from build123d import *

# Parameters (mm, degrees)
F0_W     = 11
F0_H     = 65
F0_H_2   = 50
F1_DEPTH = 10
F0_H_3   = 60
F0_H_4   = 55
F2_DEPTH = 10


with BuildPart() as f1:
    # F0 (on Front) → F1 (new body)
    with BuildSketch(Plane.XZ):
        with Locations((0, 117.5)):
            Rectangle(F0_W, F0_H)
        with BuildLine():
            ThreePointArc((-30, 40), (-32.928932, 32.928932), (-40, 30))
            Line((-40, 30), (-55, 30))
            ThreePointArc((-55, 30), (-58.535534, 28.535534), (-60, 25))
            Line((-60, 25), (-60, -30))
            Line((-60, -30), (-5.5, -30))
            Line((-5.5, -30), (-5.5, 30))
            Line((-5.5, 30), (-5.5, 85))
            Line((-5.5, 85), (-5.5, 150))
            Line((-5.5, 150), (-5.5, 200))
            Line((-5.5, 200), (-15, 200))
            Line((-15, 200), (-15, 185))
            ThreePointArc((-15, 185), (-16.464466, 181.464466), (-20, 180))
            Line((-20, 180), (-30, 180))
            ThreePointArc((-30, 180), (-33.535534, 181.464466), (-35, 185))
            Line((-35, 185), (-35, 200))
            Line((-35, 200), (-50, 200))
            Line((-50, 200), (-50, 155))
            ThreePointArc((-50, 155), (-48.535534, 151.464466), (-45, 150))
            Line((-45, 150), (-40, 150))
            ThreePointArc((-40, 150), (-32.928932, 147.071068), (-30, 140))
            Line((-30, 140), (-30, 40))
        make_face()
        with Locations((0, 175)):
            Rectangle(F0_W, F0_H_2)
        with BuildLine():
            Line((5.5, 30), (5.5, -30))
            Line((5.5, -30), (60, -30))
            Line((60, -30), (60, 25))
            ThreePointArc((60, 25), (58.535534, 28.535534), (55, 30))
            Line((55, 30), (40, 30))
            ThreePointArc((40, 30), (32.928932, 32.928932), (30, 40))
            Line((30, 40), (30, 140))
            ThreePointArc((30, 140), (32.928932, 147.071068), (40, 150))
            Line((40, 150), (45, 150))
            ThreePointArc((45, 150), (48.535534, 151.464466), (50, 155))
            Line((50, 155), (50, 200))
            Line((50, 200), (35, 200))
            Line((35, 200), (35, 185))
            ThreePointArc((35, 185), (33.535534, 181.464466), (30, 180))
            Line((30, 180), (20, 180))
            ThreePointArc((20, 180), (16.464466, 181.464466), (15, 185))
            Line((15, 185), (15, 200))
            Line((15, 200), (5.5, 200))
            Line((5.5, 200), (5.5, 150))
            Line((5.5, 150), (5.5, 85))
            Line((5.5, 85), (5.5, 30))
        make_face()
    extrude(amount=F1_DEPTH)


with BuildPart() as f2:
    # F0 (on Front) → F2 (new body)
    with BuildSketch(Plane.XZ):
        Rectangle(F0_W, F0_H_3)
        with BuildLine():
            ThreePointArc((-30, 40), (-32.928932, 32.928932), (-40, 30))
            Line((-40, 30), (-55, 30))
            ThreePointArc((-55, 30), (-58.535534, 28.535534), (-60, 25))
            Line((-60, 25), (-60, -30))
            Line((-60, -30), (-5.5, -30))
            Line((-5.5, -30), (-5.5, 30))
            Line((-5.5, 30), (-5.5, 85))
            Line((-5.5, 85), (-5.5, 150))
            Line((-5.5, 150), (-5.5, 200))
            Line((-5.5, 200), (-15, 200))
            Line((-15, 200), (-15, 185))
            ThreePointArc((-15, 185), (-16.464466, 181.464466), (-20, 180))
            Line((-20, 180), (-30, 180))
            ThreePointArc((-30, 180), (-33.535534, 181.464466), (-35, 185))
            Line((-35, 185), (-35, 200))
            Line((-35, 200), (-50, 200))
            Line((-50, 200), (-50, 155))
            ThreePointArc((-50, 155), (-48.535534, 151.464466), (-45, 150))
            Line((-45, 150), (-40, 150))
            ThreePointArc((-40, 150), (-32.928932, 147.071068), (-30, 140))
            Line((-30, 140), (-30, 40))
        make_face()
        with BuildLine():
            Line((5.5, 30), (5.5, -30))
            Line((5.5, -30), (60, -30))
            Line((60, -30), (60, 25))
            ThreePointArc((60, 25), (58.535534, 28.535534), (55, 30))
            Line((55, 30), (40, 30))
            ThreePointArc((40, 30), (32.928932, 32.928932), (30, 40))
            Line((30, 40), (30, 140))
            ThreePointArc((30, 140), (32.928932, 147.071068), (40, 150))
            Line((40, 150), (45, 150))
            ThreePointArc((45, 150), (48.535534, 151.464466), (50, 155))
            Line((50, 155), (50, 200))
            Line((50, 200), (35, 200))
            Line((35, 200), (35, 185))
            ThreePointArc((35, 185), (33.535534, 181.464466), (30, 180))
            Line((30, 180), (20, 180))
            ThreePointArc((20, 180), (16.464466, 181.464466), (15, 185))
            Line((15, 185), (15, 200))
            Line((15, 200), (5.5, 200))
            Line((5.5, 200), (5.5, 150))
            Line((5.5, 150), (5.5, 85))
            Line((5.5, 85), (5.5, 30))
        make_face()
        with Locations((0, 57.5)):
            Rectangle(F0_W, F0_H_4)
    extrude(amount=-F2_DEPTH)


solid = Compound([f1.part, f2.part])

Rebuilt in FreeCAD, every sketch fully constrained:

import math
import FreeCAD as App
import Part
import Sketcher
from FreeCAD import Vector

doc = App.newDocument("Part")
body = doc.addObject("PartDesign::Body", "Body")

# Sketch on XZ plane
sketch1 = doc.addObject("Sketcher::SketchObject", "Sketch")
body.addObject(sketch1)
sketch1.AttachmentSupport = (doc.XZ_Plane, [""])
sketch1.MapMode = "FlatFace"
sketch1.addGeometry(Part.LineSegment(Vector(-5.5, 85, 0), Vector(5.5, 85, 0)), False)
sketch1.addGeometry(Part.LineSegment(Vector(5.5, 85, 0), Vector(5.5, -30, 0)), False)
sketch1.addGeometry(Part.LineSegment(Vector(5.5, -30, 0), Vector(60, -30, 0)), False)
sketch1.addGeometry(Part.LineSegment(Vector(60, -30, 0), Vector(60, 25, 0)), False)
sketch1.addGeometry(Part.ArcOfCircle(Part.Circle(Vector(55, 25, 0), Vector(0, 0, 1), 5), math.radians(0), math.radians(90)), False)
sketch1.addGeometry(Part.LineSegment(Vector(55, 30, 0), Vector(40, 30, 0)), False)
sketch1.addGeometry(Part.ArcOfCircle(Part.Circle(Vector(40, 40, 0), Vector(0, 0, 1), 10), math.radians(180), math.radians(270)), False)
sketch1.addGeometry(Part.LineSegment(Vector(30, 40, 0), Vector(30, 140, 0)), False)
sketch1.addGeometry(Part.ArcOfCircle(Part.Circle(Vector(40, 140, 0), Vector(0, 0, 1), 10), math.radians(90), math.radians(180)), False)
sketch1.addGeometry(Part.LineSegment(Vector(40, 150, 0), Vector(45, 150, 0)), False)
sketch1.addGeometry(Part.ArcOfCircle(Part.Circle(Vector(45, 155, 0), Vector(0, 0, 1), 5), math.radians(-90), math.radians(0)), False)
sketch1.addGeometry(Part.LineSegment(Vector(50, 155, 0), Vector(50, 200, 0)), False)
sketch1.addGeometry(Part.LineSegment(Vector(50, 200, 0), Vector(35, 200, 0)), False)
sketch1.addGeometry(Part.LineSegment(Vector(35, 200, 0), Vector(35, 185, 0)), False)
sketch1.addGeometry(Part.ArcOfCircle(Part.Circle(Vector(30, 185, 0), Vector(0, 0, 1), 5), math.radians(-90), math.radians(0)), False)
sketch1.addGeometry(Part.LineSegment(Vector(30, 180, 0), Vector(20, 180, 0)), False)
sketch1.addGeometry(Part.ArcOfCircle(Part.Circle(Vector(20, 185, 0), Vector(0, 0, 1), 5), math.radians(180), math.radians(270)), False)
sketch1.addGeometry(Part.LineSegment(Vector(15, 185, 0), Vector(15, 200, 0)), False)
sketch1.addGeometry(Part.LineSegment(Vector(15, 200, 0), Vector(-15, 200, 0)), False)
sketch1.addGeometry(Part.LineSegment(Vector(-15, 200, 0), Vector(-15, 185, 0)), False)
sketch1.addGeometry(Part.ArcOfCircle(Part.Circle(Vector(-20, 185, 0), Vector(0, 0, 1), 5), math.radians(-90), math.radians(0)), False)
sketch1.addGeometry(Part.LineSegment(Vector(-20, 180, 0), Vector(-30, 180, 0)), False)
sketch1.addGeometry(Part.ArcOfCircle(Part.Circle(Vector(-30, 185, 0), Vector(0, 0, 1), 5), math.radians(180), math.radians(270)), False)
sketch1.addGeometry(Part.LineSegment(Vector(-35, 185, 0), Vector(-35, 200, 0)), False)
sketch1.addGeometry(Part.LineSegment(Vector(-35, 200, 0), Vector(-50, 200, 0)), False)
sketch1.addGeometry(Part.LineSegment(Vector(-50, 200, 0), Vector(-50, 155, 0)), False)
sketch1.addGeometry(Part.ArcOfCircle(Part.Circle(Vector(-45, 155, 0), Vector(0, 0, 1), 5), math.radians(180), math.radians(270)), False)
sketch1.addGeometry(Part.LineSegment(Vector(-45, 150, 0), Vector(-40, 150, 0)), False)
sketch1.addGeometry(Part.ArcOfCircle(Part.Circle(Vector(-40, 140, 0), Vector(0, 0, 1), 10), math.radians(0), math.radians(90)), False)
sketch1.addGeometry(Part.LineSegment(Vector(-30, 140, 0), Vector(-30, 40, 0)), False)
sketch1.addGeometry(Part.ArcOfCircle(Part.Circle(Vector(-40, 40, 0), Vector(0, 0, 1), 10), math.radians(-90), math.radians(0)), False)
sketch1.addGeometry(Part.LineSegment(Vector(-40, 30, 0), Vector(-55, 30, 0)), False)
sketch1.addGeometry(Part.ArcOfCircle(Part.Circle(Vector(-55, 25, 0), Vector(0, 0, 1), 5), math.radians(90), math.radians(180)), False)
sketch1.addGeometry(Part.LineSegment(Vector(-60, 25, 0), Vector(-60, -30, 0)), False)
sketch1.addGeometry(Part.LineSegment(Vector(-60, -30, 0), Vector(-5.5, -30, 0)), False)
sketch1.addGeometry(Part.LineSegment(Vector(-5.5, -30, 0), Vector(-5.5, 85, 0)), False)
sketch1.addConstraint(Sketcher.Constraint("Coincident", 0, 2, 1, 1))
sketch1.addConstraint(Sketcher.Constraint("Coincident", 1, 2, 2, 1))
sketch1.addConstraint(Sketcher.Constraint("Coincident", 2, 2, 3, 1))
sketch1.addConstraint(Sketcher.Constraint("Tangent", 3, 2, 4, 1))
sketch1.addConstraint(Sketcher.Constraint("Tangent", 4, 2, 5, 1))
sketch1.addConstraint(Sketcher.Constraint("Tangent", 5, 2, 6, 2))
sketch1.addConstraint(Sketcher.Constraint("Tangent", 6, 1, 7, 1))
sketch1.addConstraint(Sketcher.Constraint("Tangent", 7, 2, 8, 2))
sketch1.addConstraint(Sketcher.Constraint("Tangent", 8, 1, 9, 1))
sketch1.addConstraint(Sketcher.Constraint("Tangent", 9, 2, 10, 1))
sketch1.addConstraint(Sketcher.Constraint("Tangent", 10, 2, 11, 1))
sketch1.addConstraint(Sketcher.Constraint("Coincident", 11, 2, 12, 1))
sketch1.addConstraint(Sketcher.Constraint("Coincident", 12, 2, 13, 1))
sketch1.addConstraint(Sketcher.Constraint("Tangent", 13, 2, 14, 2))
sketch1.addConstraint(Sketcher.Constraint("Tangent", 14, 1, 15, 1))
sketch1.addConstraint(Sketcher.Constraint("Tangent", 15, 2, 16, 2))
sketch1.addConstraint(Sketcher.Constraint("Tangent", 16, 1, 17, 1))
sketch1.addConstraint(Sketcher.Constraint("Coincident", 17, 2, 18, 1))
sketch1.addConstraint(Sketcher.Constraint("Coincident", 18, 2, 19, 1))
sketch1.addConstraint(Sketcher.Constraint("Tangent", 19, 2, 20, 2))
sketch1.addConstraint(Sketcher.Constraint("Tangent", 20, 1, 21, 1))
sketch1.addConstraint(Sketcher.Constraint("Tangent", 21, 2, 22, 2))
sketch1.addConstraint(Sketcher.Constraint("Tangent", 22, 1, 23, 1))
sketch1.addConstraint(Sketcher.Constraint("Coincident", 23, 2, 24, 1))
sketch1.addConstraint(Sketcher.Constraint("Coincident", 24, 2, 25, 1))
sketch1.addConstraint(Sketcher.Constraint("Tangent", 25, 2, 26, 1))
sketch1.addConstraint(Sketcher.Constraint("Tangent", 26, 2, 27, 1))
sketch1.addConstraint(Sketcher.Constraint("Tangent", 27, 2, 28, 2))
sketch1.addConstraint(Sketcher.Constraint("Tangent", 28, 1, 29, 1))
sketch1.addConstraint(Sketcher.Constraint("Tangent", 29, 2, 30, 2))
sketch1.addConstraint(Sketcher.Constraint("Tangent", 30, 1, 31, 1))
sketch1.addConstraint(Sketcher.Constraint("Tangent", 31, 2, 32, 1))
sketch1.addConstraint(Sketcher.Constraint("Tangent", 32, 2, 33, 1))
sketch1.addConstraint(Sketcher.Constraint("Coincident", 33, 2, 34, 1))
sketch1.addConstraint(Sketcher.Constraint("Coincident", 34, 2, 35, 1))
sketch1.addConstraint(Sketcher.Constraint("Coincident", 35, 2, 0, 1))
sketch1.addConstraint(Sketcher.Constraint("Horizontal", 0))
sketch1.addConstraint(Sketcher.Constraint("Vertical", 1))
sketch1.addConstraint(Sketcher.Constraint("Horizontal", 2))
sketch1.addConstraint(Sketcher.Constraint("Vertical", 3))
sketch1.addConstraint(Sketcher.Constraint("Horizontal", 5))
sketch1.addConstraint(Sketcher.Constraint("Vertical", 7))
sketch1.addConstraint(Sketcher.Constraint("Horizontal", 9))
sketch1.addConstraint(Sketcher.Constraint("Vertical", 11))
sketch1.addConstraint(Sketcher.Constraint("Horizontal", 12))
sketch1.addConstraint(Sketcher.Constraint("Vertical", 13))
sketch1.addConstraint(Sketcher.Constraint("Horizontal", 15))
sketch1.addConstraint(Sketcher.Constraint("Vertical", 17))
sketch1.addConstraint(Sketcher.Constraint("Horizontal", 18))
sketch1.addConstraint(Sketcher.Constraint("Vertical", 19))
sketch1.addConstraint(Sketcher.Constraint("Horizontal", 21))
sketch1.addConstraint(Sketcher.Constraint("Vertical", 23))
sketch1.addConstraint(Sketcher.Constraint("Horizontal", 24))
sketch1.addConstraint(Sketcher.Constraint("Vertical", 25))
sketch1.addConstraint(Sketcher.Constraint("Horizontal", 27))
sketch1.addConstraint(Sketcher.Constraint("Vertical", 29))
sketch1.addConstraint(Sketcher.Constraint("Horizontal", 31))
sketch1.addConstraint(Sketcher.Constraint("Vertical", 33))
sketch1.addConstraint(Sketcher.Constraint("Horizontal", 34))
sketch1.addConstraint(Sketcher.Constraint("Vertical", 35))
sketch1.addConstraint(Sketcher.Constraint("Equal", 6, 8))
sketch1.addConstraint(Sketcher.Constraint("Equal", 4, 10))
sketch1.addConstraint(Sketcher.Constraint("Equal", 10, 14))
sketch1.addConstraint(Sketcher.Constraint("Equal", 14, 16))
sketch1.addConstraint(Sketcher.Constraint("Equal", 16, 20))
sketch1.addConstraint(Sketcher.Constraint("Equal", 20, 22))
sketch1.addConstraint(Sketcher.Constraint("Equal", 22, 26))
sketch1.addConstraint(Sketcher.Constraint("Equal", 8, 28))
sketch1.addConstraint(Sketcher.Constraint("Equal", 28, 30))
sketch1.addConstraint(Sketcher.Constraint("Equal", 26, 32))
sketch1.addConstraint(Sketcher.Constraint("Symmetric", 16, 3, 20, 3, -2))
sketch1.addConstraint(Sketcher.Constraint("Symmetric", 10, 3, 26, 3, -2))
sketch1.addConstraint(Sketcher.Constraint("Symmetric", 6, 3, 30, 3, -2))
sketch1.addConstraint(Sketcher.Constraint("Symmetric", 12, 2, 23, 2, -2))
sketch1.addConstraint(Sketcher.Constraint("Symmetric", 2, 2, 33, 2, -2))
sketch1.addConstraint(Sketcher.Constraint("Horizontal", 12, 2, 17, 2))
sketch1.addConstraint(Sketcher.Constraint("Vertical", 14, 3, 6, 1))
sketch1.addConstraint(Sketcher.Constraint("Equal", 5, 12))
sketch1.addConstraint(Sketcher.Constraint("Equal", 2, 34))
sketch1.addConstraint(Sketcher.Constraint("Equal", 31, 13))
sketch1.addConstraint(Sketcher.Constraint("Radius", 4, 5.0))
sketch1.addConstraint(Sketcher.Constraint("Radius", 6, 9.999999))
sketch1.addConstraint(Sketcher.Constraint("DistanceX", 0, 1, 0, 2, 11.0))
sketch1.addConstraint(Sketcher.Constraint("DistanceX", 5, 2, 5, 1, 15.0))
sketch1.addConstraint(Sketcher.Constraint("DistanceX", 15, 2, 15, 1, 10.0))
sketch1.addConstraint(Sketcher.Constraint("DistanceX", 18, 2, 18, 1, 30.0))
sketch1.addConstraint(Sketcher.Constraint("DistanceY", 1, 2, 1, 1, 115.0))
sketch1.addConstraint(Sketcher.Constraint("DistanceY", 3, 1, 3, 2, 55.0))
sketch1.addConstraint(Sketcher.Constraint("DistanceY", 7, 1, 7, 2, 100.0))
sketch1.addConstraint(Sketcher.Constraint("DistanceY", 11, 1, 11, 2, 45.0))
sketch1.addConstraint(Sketcher.Constraint("DistanceY", -1, 1, 4, 3, 25.0))
pad1 = doc.addObject("PartDesign::Pad", "Pad")
body.addObject(pad1)
pad1.Profile = sketch1
pad1.Length = 10
body2 = doc.addObject("PartDesign::Body", "Body001")

# Sketch on XZ plane
sketch2 = doc.addObject("Sketcher::SketchObject", "Sketch001")
body2.addObject(sketch2)
sketch2.AttachmentSupport = (doc.getObject("XZ_Plane001"), [""])
sketch2.MapMode = "FlatFace"
sketch2.addGeometry(Part.LineSegment(Vector(-5.5, 85, 0), Vector(-5.5, 200, 0)), False)
sketch2.addGeometry(Part.LineSegment(Vector(-5.5, 200, 0), Vector(-15, 200, 0)), False)
sketch2.addGeometry(Part.LineSegment(Vector(-15, 200, 0), Vector(-15, 185, 0)), False)
sketch2.addGeometry(Part.ArcOfCircle(Part.Circle(Vector(-20, 185, 0), Vector(0, 0, 1), 5), math.radians(-90), math.radians(0)), False)
sketch2.addGeometry(Part.LineSegment(Vector(-20, 180, 0), Vector(-30, 180, 0)), False)
sketch2.addGeometry(Part.ArcOfCircle(Part.Circle(Vector(-30, 185, 0), Vector(0, 0, 1), 5), math.radians(180), math.radians(270)), False)
sketch2.addGeometry(Part.LineSegment(Vector(-35, 185, 0), Vector(-35, 200, 0)), False)
sketch2.addGeometry(Part.LineSegment(Vector(-35, 200, 0), Vector(-50, 200, 0)), False)
sketch2.addGeometry(Part.LineSegment(Vector(-50, 200, 0), Vector(-50, 155, 0)), False)
sketch2.addGeometry(Part.ArcOfCircle(Part.Circle(Vector(-45, 155, 0), Vector(0, 0, 1), 5), math.radians(180), math.radians(270)), False)
sketch2.addGeometry(Part.LineSegment(Vector(-45, 150, 0), Vector(-40, 150, 0)), False)
sketch2.addGeometry(Part.ArcOfCircle(Part.Circle(Vector(-40, 140, 0), Vector(0, 0, 1), 10), math.radians(0), math.radians(90)), False)
sketch2.addGeometry(Part.LineSegment(Vector(-30, 140, 0), Vector(-30, 40, 0)), False)
sketch2.addGeometry(Part.ArcOfCircle(Part.Circle(Vector(-40, 40, 0), Vector(0, 0, 1), 10), math.radians(-90), math.radians(0)), False)
sketch2.addGeometry(Part.LineSegment(Vector(-40, 30, 0), Vector(-55, 30, 0)), False)
sketch2.addGeometry(Part.ArcOfCircle(Part.Circle(Vector(-55, 25, 0), Vector(0, 0, 1), 5), math.radians(90), math.radians(180)), False)
sketch2.addGeometry(Part.LineSegment(Vector(-60, 25, 0), Vector(-60, -30, 0)), False)
sketch2.addGeometry(Part.LineSegment(Vector(-60, -30, 0), Vector(60, -30, 0)), False)
sketch2.addGeometry(Part.LineSegment(Vector(60, -30, 0), Vector(60, 25, 0)), False)
sketch2.addGeometry(Part.ArcOfCircle(Part.Circle(Vector(55, 25, 0), Vector(0, 0, 1), 5), math.radians(0), math.radians(90)), False)
sketch2.addGeometry(Part.LineSegment(Vector(55, 30, 0), Vector(40, 30, 0)), False)
sketch2.addGeometry(Part.ArcOfCircle(Part.Circle(Vector(40, 40, 0), Vector(0, 0, 1), 10), math.radians(180), math.radians(270)), False)
sketch2.addGeometry(Part.LineSegment(Vector(30, 40, 0), Vector(30, 140, 0)), False)
sketch2.addGeometry(Part.ArcOfCircle(Part.Circle(Vector(40, 140, 0), Vector(0, 0, 1), 10), math.radians(90), math.radians(180)), False)
sketch2.addGeometry(Part.LineSegment(Vector(40, 150, 0), Vector(45, 150, 0)), False)
sketch2.addGeometry(Part.ArcOfCircle(Part.Circle(Vector(45, 155, 0), Vector(0, 0, 1), 5), math.radians(-90), math.radians(0)), False)
sketch2.addGeometry(Part.LineSegment(Vector(50, 155, 0), Vector(50, 200, 0)), False)
sketch2.addGeometry(Part.LineSegment(Vector(50, 200, 0), Vector(35, 200, 0)), False)
sketch2.addGeometry(Part.LineSegment(Vector(35, 200, 0), Vector(35, 185, 0)), False)
sketch2.addGeometry(Part.ArcOfCircle(Part.Circle(Vector(30, 185, 0), Vector(0, 0, 1), 5), math.radians(-90), math.radians(0)), False)
sketch2.addGeometry(Part.LineSegment(Vector(30, 180, 0), Vector(20, 180, 0)), False)
sketch2.addGeometry(Part.ArcOfCircle(Part.Circle(Vector(20, 185, 0), Vector(0, 0, 1), 5), math.radians(180), math.radians(270)), False)
sketch2.addGeometry(Part.LineSegment(Vector(15, 185, 0), Vector(15, 200, 0)), False)
sketch2.addGeometry(Part.LineSegment(Vector(15, 200, 0), Vector(5.5, 200, 0)), False)
sketch2.addGeometry(Part.LineSegment(Vector(5.5, 200, 0), Vector(5.5, 85, 0)), False)
sketch2.addGeometry(Part.LineSegment(Vector(5.5, 85, 0), Vector(-5.5, 85, 0)), False)
sketch2.addConstraint(Sketcher.Constraint("Coincident", 0, 2, 1, 1))
sketch2.addConstraint(Sketcher.Constraint("Coincident", 1, 2, 2, 1))
sketch2.addConstraint(Sketcher.Constraint("Tangent", 2, 2, 3, 2))
sketch2.addConstraint(Sketcher.Constraint("Tangent", 3, 1, 4, 1))
sketch2.addConstraint(Sketcher.Constraint("Tangent", 4, 2, 5, 2))
sketch2.addConstraint(Sketcher.Constraint("Tangent", 5, 1, 6, 1))
sketch2.addConstraint(Sketcher.Constraint("Coincident", 6, 2, 7, 1))
sketch2.addConstraint(Sketcher.Constraint("Coincident", 7, 2, 8, 1))
sketch2.addConstraint(Sketcher.Constraint("Tangent", 8, 2, 9, 1))
sketch2.addConstraint(Sketcher.Constraint("Tangent", 9, 2, 10, 1))
sketch2.addConstraint(Sketcher.Constraint("Tangent", 10, 2, 11, 2))
sketch2.addConstraint(Sketcher.Constraint("Tangent", 11, 1, 12, 1))
sketch2.addConstraint(Sketcher.Constraint("Tangent", 12, 2, 13, 2))
sketch2.addConstraint(Sketcher.Constraint("Tangent", 13, 1, 14, 1))
sketch2.addConstraint(Sketcher.Constraint("Tangent", 14, 2, 15, 1))
sketch2.addConstraint(Sketcher.Constraint("Tangent", 15, 2, 16, 1))
sketch2.addConstraint(Sketcher.Constraint("Coincident", 16, 2, 17, 1))
sketch2.addConstraint(Sketcher.Constraint("Coincident", 17, 2, 18, 1))
sketch2.addConstraint(Sketcher.Constraint("Tangent", 18, 2, 19, 1))
sketch2.addConstraint(Sketcher.Constraint("Tangent", 19, 2, 20, 1))
sketch2.addConstraint(Sketcher.Constraint("Tangent", 20, 2, 21, 2))
sketch2.addConstraint(Sketcher.Constraint("Tangent", 21, 1, 22, 1))
sketch2.addConstraint(Sketcher.Constraint("Tangent", 22, 2, 23, 2))
sketch2.addConstraint(Sketcher.Constraint("Tangent", 23, 1, 24, 1))
sketch2.addConstraint(Sketcher.Constraint("Tangent", 24, 2, 25, 1))
sketch2.addConstraint(Sketcher.Constraint("Tangent", 25, 2, 26, 1))
sketch2.addConstraint(Sketcher.Constraint("Coincident", 26, 2, 27, 1))
sketch2.addConstraint(Sketcher.Constraint("Coincident", 27, 2, 28, 1))
sketch2.addConstraint(Sketcher.Constraint("Tangent", 28, 2, 29, 2))
sketch2.addConstraint(Sketcher.Constraint("Tangent", 29, 1, 30, 1))
sketch2.addConstraint(Sketcher.Constraint("Tangent", 30, 2, 31, 2))
sketch2.addConstraint(Sketcher.Constraint("Tangent", 31, 1, 32, 1))
sketch2.addConstraint(Sketcher.Constraint("Coincident", 32, 2, 33, 1))
sketch2.addConstraint(Sketcher.Constraint("Coincident", 33, 2, 34, 1))
sketch2.addConstraint(Sketcher.Constraint("Coincident", 34, 2, 35, 1))
sketch2.addConstraint(Sketcher.Constraint("Coincident", 35, 2, 0, 1))
sketch2.addConstraint(Sketcher.Constraint("Vertical", 0))
sketch2.addConstraint(Sketcher.Constraint("Horizontal", 1))
sketch2.addConstraint(Sketcher.Constraint("Vertical", 2))
sketch2.addConstraint(Sketcher.Constraint("Horizontal", 4))
sketch2.addConstraint(Sketcher.Constraint("Vertical", 6))
sketch2.addConstraint(Sketcher.Constraint("Horizontal", 7))
sketch2.addConstraint(Sketcher.Constraint("Vertical", 8))
sketch2.addConstraint(Sketcher.Constraint("Horizontal", 10))
sketch2.addConstraint(Sketcher.Constraint("Vertical", 12))
sketch2.addConstraint(Sketcher.Constraint("Horizontal", 14))
sketch2.addConstraint(Sketcher.Constraint("Vertical", 16))
sketch2.addConstraint(Sketcher.Constraint("Horizontal", 17))
sketch2.addConstraint(Sketcher.Constraint("Vertical", 18))
sketch2.addConstraint(Sketcher.Constraint("Horizontal", 20))
sketch2.addConstraint(Sketcher.Constraint("Vertical", 22))
sketch2.addConstraint(Sketcher.Constraint("Horizontal", 24))
sketch2.addConstraint(Sketcher.Constraint("Vertical", 26))
sketch2.addConstraint(Sketcher.Constraint("Horizontal", 27))
sketch2.addConstraint(Sketcher.Constraint("Vertical", 28))
sketch2.addConstraint(Sketcher.Constraint("Horizontal", 30))
sketch2.addConstraint(Sketcher.Constraint("Vertical", 32))
sketch2.addConstraint(Sketcher.Constraint("Horizontal", 33))
sketch2.addConstraint(Sketcher.Constraint("Vertical", 34))
sketch2.addConstraint(Sketcher.Constraint("Horizontal", 35))
sketch2.addConstraint(Sketcher.Constraint("Equal", 3, 5))
sketch2.addConstraint(Sketcher.Constraint("Equal", 5, 9))
sketch2.addConstraint(Sketcher.Constraint("Equal", 11, 13))
sketch2.addConstraint(Sketcher.Constraint("Equal", 9, 15))
sketch2.addConstraint(Sketcher.Constraint("Equal", 15, 19))
sketch2.addConstraint(Sketcher.Constraint("Equal", 13, 21))
sketch2.addConstraint(Sketcher.Constraint("Equal", 21, 23))
sketch2.addConstraint(Sketcher.Constraint("Equal", 19, 25))
sketch2.addConstraint(Sketcher.Constraint("Equal", 25, 29))
sketch2.addConstraint(Sketcher.Constraint("Equal", 29, 31))
sketch2.addConstraint(Sketcher.Constraint("Symmetric", 15, 3, 19, 3, -2))
sketch2.addConstraint(Sketcher.Constraint("Symmetric", 11, 3, 23, 3, -2))
sketch2.addConstraint(Sketcher.Constraint("Symmetric", 5, 3, 29, 3, -2))
sketch2.addConstraint(Sketcher.Constraint("Symmetric", 7, 2, 26, 2, -2))
sketch2.addConstraint(Sketcher.Constraint("Symmetric", 1, 2, 32, 2, -2))
sketch2.addConstraint(Sketcher.Constraint("Horizontal", 1, 2, 6, 2))
sketch2.addConstraint(Sketcher.Constraint("Vertical", 4, 2, 11, 1))
sketch2.addConstraint(Sketcher.Constraint("Equal", 7, 14))
sketch2.addConstraint(Sketcher.Constraint("Equal", 1, 33))
sketch2.addConstraint(Sketcher.Constraint("Equal", 27, 2))
sketch2.addConstraint(Sketcher.Constraint("Radius", 3, 5.0))
sketch2.addConstraint(Sketcher.Constraint("Radius", 11, 9.999999))
sketch2.addConstraint(Sketcher.Constraint("DistanceX", 4, 2, 4, 1, 10.0))
sketch2.addConstraint(Sketcher.Constraint("DistanceX", 7, 2, 7, 1, 15.0))
sketch2.addConstraint(Sketcher.Constraint("DistanceX", 17, 1, 17, 2, 120.0))
sketch2.addConstraint(Sketcher.Constraint("DistanceX", 35, 2, 35, 1, 11.0))
sketch2.addConstraint(Sketcher.Constraint("DistanceY", 0, 1, 0, 2, 115.0))
sketch2.addConstraint(Sketcher.Constraint("DistanceY", 8, 2, 8, 1, 45.0))
sketch2.addConstraint(Sketcher.Constraint("DistanceY", 12, 2, 12, 1, 100.0))
sketch2.addConstraint(Sketcher.Constraint("DistanceY", 16, 2, 16, 1, 55.0))
sketch2.addConstraint(Sketcher.Constraint("DistanceY", -1, 1, 3, 3, 185.0))
pad2 = doc.addObject("PartDesign::Pad", "Pad001")
body2.addObject(pad2)
pad2.Profile = sketch2
pad2.Length = 10
pad2.Reversed = True

doc.recompute()
